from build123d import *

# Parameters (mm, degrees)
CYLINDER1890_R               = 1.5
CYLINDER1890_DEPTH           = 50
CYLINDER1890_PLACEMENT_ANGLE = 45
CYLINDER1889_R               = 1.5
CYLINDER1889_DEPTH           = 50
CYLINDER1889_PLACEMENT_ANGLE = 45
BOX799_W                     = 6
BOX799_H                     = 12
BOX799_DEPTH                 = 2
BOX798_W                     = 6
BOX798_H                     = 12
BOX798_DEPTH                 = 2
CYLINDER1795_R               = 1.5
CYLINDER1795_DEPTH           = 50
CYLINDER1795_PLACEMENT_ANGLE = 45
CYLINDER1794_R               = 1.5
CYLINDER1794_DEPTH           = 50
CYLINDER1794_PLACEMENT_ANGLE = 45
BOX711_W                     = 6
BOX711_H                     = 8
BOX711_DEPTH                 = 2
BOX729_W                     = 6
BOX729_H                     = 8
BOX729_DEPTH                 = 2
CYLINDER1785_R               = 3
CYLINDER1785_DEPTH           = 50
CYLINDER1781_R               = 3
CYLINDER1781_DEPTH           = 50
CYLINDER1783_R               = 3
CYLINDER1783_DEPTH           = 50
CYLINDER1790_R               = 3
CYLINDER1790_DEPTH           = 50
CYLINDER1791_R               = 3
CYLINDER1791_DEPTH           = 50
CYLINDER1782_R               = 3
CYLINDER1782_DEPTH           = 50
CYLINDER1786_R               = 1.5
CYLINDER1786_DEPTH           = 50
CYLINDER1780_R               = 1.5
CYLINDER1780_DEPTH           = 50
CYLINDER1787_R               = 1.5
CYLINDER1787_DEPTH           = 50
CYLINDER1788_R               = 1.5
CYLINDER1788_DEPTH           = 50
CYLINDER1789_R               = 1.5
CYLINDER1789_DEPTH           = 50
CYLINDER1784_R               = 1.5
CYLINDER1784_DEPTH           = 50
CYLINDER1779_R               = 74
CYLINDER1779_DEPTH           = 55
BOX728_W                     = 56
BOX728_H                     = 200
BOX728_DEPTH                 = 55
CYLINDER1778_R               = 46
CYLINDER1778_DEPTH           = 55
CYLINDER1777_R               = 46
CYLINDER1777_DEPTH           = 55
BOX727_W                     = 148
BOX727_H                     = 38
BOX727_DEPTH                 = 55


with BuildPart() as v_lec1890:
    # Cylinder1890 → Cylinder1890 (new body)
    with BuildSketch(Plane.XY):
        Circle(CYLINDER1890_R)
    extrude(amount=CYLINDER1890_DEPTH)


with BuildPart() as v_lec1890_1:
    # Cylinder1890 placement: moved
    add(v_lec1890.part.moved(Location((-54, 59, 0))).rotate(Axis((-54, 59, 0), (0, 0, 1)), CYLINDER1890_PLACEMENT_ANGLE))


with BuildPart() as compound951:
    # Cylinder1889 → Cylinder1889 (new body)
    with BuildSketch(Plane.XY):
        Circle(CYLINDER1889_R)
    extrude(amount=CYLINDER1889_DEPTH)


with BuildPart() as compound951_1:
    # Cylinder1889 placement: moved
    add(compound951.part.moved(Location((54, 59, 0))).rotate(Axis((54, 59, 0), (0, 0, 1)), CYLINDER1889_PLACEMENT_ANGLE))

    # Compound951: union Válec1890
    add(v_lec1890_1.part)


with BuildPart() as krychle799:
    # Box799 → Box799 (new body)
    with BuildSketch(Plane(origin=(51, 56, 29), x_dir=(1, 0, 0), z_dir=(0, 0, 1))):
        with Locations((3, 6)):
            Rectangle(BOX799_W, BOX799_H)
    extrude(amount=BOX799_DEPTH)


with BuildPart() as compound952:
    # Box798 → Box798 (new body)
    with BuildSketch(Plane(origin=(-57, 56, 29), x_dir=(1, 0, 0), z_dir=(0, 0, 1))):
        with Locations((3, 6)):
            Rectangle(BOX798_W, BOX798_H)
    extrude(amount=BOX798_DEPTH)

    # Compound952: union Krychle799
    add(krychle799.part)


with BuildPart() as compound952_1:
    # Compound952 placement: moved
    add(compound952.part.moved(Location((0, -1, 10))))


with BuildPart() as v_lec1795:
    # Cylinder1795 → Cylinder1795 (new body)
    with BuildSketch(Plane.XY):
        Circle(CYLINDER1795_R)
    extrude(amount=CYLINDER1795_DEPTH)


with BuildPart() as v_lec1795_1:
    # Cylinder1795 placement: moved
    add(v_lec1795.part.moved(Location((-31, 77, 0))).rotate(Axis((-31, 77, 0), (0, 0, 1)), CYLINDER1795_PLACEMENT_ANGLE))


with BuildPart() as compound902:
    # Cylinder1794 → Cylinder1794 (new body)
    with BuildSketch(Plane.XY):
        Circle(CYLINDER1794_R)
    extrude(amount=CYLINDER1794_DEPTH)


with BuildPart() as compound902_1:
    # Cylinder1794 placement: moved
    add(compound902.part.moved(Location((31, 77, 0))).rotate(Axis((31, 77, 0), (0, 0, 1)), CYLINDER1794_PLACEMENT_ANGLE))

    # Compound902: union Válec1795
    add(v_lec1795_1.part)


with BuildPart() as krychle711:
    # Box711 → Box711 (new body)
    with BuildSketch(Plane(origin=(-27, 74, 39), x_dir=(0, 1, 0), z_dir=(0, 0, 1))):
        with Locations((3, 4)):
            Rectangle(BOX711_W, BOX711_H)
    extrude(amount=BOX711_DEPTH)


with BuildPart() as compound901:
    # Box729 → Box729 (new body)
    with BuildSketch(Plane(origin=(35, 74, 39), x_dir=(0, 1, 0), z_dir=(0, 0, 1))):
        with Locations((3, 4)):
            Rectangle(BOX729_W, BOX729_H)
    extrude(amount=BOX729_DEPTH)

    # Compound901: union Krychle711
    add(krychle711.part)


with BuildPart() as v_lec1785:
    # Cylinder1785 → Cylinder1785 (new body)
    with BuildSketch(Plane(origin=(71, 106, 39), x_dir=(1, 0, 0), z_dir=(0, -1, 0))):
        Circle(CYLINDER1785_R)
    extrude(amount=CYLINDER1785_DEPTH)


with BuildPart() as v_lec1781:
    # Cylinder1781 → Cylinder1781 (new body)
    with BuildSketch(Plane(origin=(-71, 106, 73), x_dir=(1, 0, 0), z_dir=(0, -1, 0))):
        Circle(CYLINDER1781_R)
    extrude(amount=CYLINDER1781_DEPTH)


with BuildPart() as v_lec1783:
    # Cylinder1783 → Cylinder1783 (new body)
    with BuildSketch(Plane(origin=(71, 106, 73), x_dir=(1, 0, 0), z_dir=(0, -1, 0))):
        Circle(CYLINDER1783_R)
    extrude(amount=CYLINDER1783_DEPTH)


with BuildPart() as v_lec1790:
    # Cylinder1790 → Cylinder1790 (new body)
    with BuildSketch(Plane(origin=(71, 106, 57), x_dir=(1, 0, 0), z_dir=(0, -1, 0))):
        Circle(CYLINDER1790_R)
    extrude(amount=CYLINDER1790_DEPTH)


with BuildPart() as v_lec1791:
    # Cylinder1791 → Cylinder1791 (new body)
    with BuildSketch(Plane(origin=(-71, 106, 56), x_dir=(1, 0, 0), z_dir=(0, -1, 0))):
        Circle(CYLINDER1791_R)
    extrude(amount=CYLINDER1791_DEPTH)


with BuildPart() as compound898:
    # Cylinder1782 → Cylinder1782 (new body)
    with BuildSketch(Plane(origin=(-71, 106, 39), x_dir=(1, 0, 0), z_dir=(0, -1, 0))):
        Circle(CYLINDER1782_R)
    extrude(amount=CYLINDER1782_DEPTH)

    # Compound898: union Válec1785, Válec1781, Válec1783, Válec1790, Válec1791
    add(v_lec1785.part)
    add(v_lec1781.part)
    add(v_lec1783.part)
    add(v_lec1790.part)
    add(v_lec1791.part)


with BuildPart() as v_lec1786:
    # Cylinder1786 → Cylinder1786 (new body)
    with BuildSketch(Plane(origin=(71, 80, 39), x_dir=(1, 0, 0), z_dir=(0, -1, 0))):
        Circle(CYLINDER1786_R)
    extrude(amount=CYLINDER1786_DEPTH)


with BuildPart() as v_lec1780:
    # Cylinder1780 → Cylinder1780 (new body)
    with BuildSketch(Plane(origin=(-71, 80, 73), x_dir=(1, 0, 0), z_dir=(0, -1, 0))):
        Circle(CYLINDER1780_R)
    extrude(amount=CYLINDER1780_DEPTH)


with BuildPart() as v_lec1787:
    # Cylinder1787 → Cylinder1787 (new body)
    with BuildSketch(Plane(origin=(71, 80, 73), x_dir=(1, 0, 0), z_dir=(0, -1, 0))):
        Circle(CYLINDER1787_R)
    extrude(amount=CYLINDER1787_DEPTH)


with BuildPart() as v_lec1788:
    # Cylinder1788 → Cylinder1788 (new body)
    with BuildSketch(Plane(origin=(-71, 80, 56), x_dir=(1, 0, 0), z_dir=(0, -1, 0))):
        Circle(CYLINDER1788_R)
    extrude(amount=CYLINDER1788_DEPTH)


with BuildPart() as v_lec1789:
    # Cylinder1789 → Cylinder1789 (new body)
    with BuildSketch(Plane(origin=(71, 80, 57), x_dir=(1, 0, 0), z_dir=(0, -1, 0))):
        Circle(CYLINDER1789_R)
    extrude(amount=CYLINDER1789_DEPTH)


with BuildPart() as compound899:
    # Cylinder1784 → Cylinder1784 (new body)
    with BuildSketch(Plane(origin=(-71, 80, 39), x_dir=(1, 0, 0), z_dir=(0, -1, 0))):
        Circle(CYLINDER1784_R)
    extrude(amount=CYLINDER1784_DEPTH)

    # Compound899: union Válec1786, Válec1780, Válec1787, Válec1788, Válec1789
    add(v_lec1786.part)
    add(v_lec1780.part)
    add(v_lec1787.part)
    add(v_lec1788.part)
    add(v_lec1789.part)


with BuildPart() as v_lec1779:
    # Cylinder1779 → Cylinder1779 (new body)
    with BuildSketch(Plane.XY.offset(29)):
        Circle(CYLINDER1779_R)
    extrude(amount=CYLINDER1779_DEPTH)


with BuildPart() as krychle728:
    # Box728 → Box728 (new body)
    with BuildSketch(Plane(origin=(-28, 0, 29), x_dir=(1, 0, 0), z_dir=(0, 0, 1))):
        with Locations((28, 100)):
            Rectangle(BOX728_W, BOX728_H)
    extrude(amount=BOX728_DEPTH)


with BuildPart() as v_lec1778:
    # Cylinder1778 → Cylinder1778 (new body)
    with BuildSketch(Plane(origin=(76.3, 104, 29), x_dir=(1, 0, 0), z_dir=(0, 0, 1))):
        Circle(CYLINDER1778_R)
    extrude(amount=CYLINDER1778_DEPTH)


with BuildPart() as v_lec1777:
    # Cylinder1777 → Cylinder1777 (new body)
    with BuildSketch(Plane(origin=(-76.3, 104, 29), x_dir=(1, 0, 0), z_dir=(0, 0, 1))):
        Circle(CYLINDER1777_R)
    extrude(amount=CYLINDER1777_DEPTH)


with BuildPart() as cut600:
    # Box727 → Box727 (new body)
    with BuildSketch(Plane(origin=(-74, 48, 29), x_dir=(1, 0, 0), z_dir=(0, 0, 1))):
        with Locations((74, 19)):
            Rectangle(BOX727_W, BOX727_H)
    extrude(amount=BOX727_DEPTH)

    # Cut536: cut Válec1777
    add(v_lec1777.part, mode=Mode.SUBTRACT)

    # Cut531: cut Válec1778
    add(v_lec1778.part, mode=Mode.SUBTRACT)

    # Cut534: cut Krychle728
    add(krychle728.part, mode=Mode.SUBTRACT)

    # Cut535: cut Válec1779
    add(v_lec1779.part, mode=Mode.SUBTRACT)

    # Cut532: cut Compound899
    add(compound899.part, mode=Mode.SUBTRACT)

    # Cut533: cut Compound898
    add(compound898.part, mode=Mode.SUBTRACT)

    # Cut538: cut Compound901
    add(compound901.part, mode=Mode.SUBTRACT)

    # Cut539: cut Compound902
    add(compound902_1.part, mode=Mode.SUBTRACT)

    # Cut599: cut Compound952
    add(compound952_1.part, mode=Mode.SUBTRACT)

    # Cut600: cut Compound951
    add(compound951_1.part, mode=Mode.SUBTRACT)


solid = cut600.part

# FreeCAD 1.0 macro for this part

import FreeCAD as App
import Part
import Sketcher
from FreeCAD import Vector


def add_polygon(sketch, points):
    """Adds a closed chain of lines whose ends are joined by coincident constraints."""
    first, n = sketch.GeometryCount, len(points)
    for a, b in zip(points, points[1:] + points[:1]):
        sketch.addGeometry(Part.LineSegment(App.Vector(*a, 0), App.Vector(*b, 0)), False)
    for i in range(n):
        sketch.addConstraint(Sketcher.Constraint("Coincident", first + i, 2, first + (i + 1) % n, 1))

doc = App.newDocument("Part")
body = doc.addObject("PartDesign::Body", "Body")

# Sketch on XY plane
sketch1 = doc.addObject("Sketcher::SketchObject", "Sketch")
body.addObject(sketch1)
sketch1.AttachmentSupport = (doc.XY_Plane, [""])
sketch1.MapMode = "FlatFace"
sketch1.addGeometry(Part.Circle(Vector(0, 0, 0), Vector(0, 0, 1), 1.5), False)
sketch1.addConstraint([
    Sketcher.Constraint("Coincident", 0, 3, -1, 1),
    Sketcher.Constraint("Diameter", 0, 3.0),
])
pad1 = doc.addObject("PartDesign::Pad", "Pad")
body.addObject(pad1)
pad1.Profile = sketch1
pad1.Length = 50
body2 = doc.addObject("PartDesign::Body", "Body001")
doc.recompute()

body.Placement = App.Placement(Vector(-54, 59, 0), App.Rotation(Vector(0, 0, 1), 45))
boolean = doc.addObject("PartDesign::Boolean", "Boolean")
body2.addObject(boolean)
boolean.Type = "Fuse"
boolean.addObjects([body])
body3 = doc.addObject("PartDesign::Body", "Body002")

# Sketch on XY plane
sketch2 = doc.addObject("Sketcher::SketchObject", "Sketch001")
body3.addObject(sketch2)
sketch2.AttachmentSupport = (doc.getObject("XY_Plane002"), [""])
sketch2.MapMode = "FlatFace"
sketch2.addGeometry(Part.Circle(Vector(0, 0, 0), Vector(0, 0, 1), 1.5), False)
sketch2.addConstraint([
    Sketcher.Constraint("Coincident", 0, 3, -1, 1),
    Sketcher.Constraint("Diameter", 0, 3.0),
])
pad2 = doc.addObject("PartDesign::Pad", "Pad001")
body3.addObject(pad2)
pad2.Profile = sketch2
pad2.Length = 50
body4 = doc.addObject("PartDesign::Body", "Body003")
body4.AllowCompound = True
doc.recompute()

body3.Placement = App.Placement(Vector(54, 59, 0), App.Rotation(Vector(0, 0, 1), 45))
boolean2 = doc.addObject("PartDesign::Boolean", "Boolean001")
body4.addObject(boolean2)
boolean2.Type = "Fuse"
boolean2.addObjects([body3])
doc.recompute()

boolean3 = doc.addObject("PartDesign::Boolean", "Boolean002")
body4.addObject(boolean3)
boolean3.Type = "Fuse"
boolean3.addObjects([body2])
body5 = doc.addObject("PartDesign::Body", "Body004")

# Sketch on XY plane
sketch3 = doc.addObject("Sketcher::SketchObject", "Sketch002")
body5.addObject(sketch3)
sketch3.AttachmentSupport = (doc.getObject("XY_Plane004"), [""])
sketch3.MapMode = "FlatFace"
sketch3.AttachmentOffset = App.Placement(Vector(0, 0, 29), App.Rotation())
add_polygon(sketch3, [(51, 68), (51, 56), (57, 56), (57, 68)])  # lines 0-3
sketch3.addConstraint([
    Sketcher.Constraint("Vertical", 0),
    Sketcher.Constraint("Horizontal", 1),
    Sketcher.Constraint("Vertical", 2),
    Sketcher.Constraint("Horizontal", 3),
    Sketcher.Constraint("DistanceX", 1, 1, 1, 2, 6.0),
    Sketcher.Constraint("DistanceY", 0, 2, 0, 1, 12.0),
    Sketcher.Constraint("DistanceX", -1, 1, 0, 2, 51.0),
    Sketcher.Constraint("DistanceY", -1, 1, 0, 2, 56.0),
])
pad3 = doc.addObject("PartDesign::Pad", "Pad002")
body5.addObject(pad3)
pad3.Profile = sketch3
pad3.Length = 2
body6 = doc.addObject("PartDesign::Body", "Body005")
body6.AllowCompound = True

# Sketch on XY plane
sketch4 = doc.addObject("Sketcher::SketchObject", "Sketch003")
body6.addObject(sketch4)
sketch4.AttachmentSupport = (doc.getObject("XY_Plane005"), [""])
sketch4.MapMode = "FlatFace"
sketch4.AttachmentOffset = App.Placement(Vector(0, 0, 29), App.Rotation())
add_polygon(sketch4, [(-57, 68), (-57, 56), (-51, 56), (-51, 68)])  # lines 0-3
sketch4.addConstraint([
    Sketcher.Constraint("Vertical", 0),
    Sketcher.Constraint("Horizontal", 1),
    Sketcher.Constraint("Vertical", 2),
    Sketcher.Constraint("Horizontal", 3),
    Sketcher.Constraint("DistanceX", 1, 1, 1, 2, 6.0),
    Sketcher.Constraint("DistanceY", 0, 2, 0, 1, 12.0),
    Sketcher.Constraint("DistanceX", 0, 2, -1, 1, 57.0),
    Sketcher.Constraint("DistanceY", -1, 1, 0, 2, 56.0),
])
pad4 = doc.addObject("PartDesign::Pad", "Pad003")
body6.addObject(pad4)
pad4.Profile = sketch4
pad4.Length = 2
doc.recompute()

boolean4 = doc.addObject("PartDesign::Boolean", "Boolean003")
body6.addObject(boolean4)
boolean4.Type = "Fuse"
boolean4.addObjects([body5])
body7 = doc.addObject("PartDesign::Body", "Body006")
body7.AllowCompound = True
doc.recompute()

body6.Placement = App.Placement(Vector(0, -1, 10), App.Rotation(Vector(0, 0, 1), 0))
boolean5 = doc.addObject("PartDesign::Boolean", "Boolean004")
body7.addObject(boolean5)
boolean5.Type = "Fuse"
boolean5.addObjects([body6])
body8 = doc.addObject("PartDesign::Body", "Body007")

# Sketch on XY plane
sketch5 = doc.addObject("Sketcher::SketchObject", "Sketch004")
body8.addObject(sketch5)
sketch5.AttachmentSupport = (doc.getObject("XY_Plane007"), [""])
sketch5.MapMode = "FlatFace"
sketch5.addGeometry(Part.Circle(Vector(0, 0, 0), Vector(0, 0, 1), 1.5), False)
sketch5.addConstraint([
    Sketcher.Constraint("Coincident", 0, 3, -1, 1),
    Sketcher.Constraint("Diameter", 0, 3.0),
])
pad5 = doc.addObject("PartDesign::Pad", "Pad004")
body8.addObject(pad5)
pad5.Profile = sketch5
pad5.Length = 50
body9 = doc.addObject("PartDesign::Body", "Body008")
doc.recompute()

body8.Placement = App.Placement(Vector(-31, 77, 0), App.Rotation(Vector(0, 0, 1), 45))
boolean6 = doc.addObject("PartDesign::Boolean", "Boolean005")
body9.addObject(boolean6)
boolean6.Type = "Fuse"
boolean6.addObjects([body8])
body10 = doc.addObject("PartDesign::Body", "Body009")

# Sketch on XY plane
sketch6 = doc.addObject("Sketcher::SketchObject", "Sketch005")
body10.addObject(sketch6)
sketch6.AttachmentSupport = (doc.getObject("XY_Plane009"), [""])
sketch6.MapMode = "FlatFace"
sketch6.addGeometry(Part.Circle(Vector(0, 0, 0), Vector(0, 0, 1), 1.5), False)
sketch6.addConstraint([
    Sketcher.Constraint("Coincident", 0, 3, -1, 1),
    Sketcher.Constraint("Diameter", 0, 3.0),
])
pad6 = doc.addObject("PartDesign::Pad", "Pad005")
body10.addObject(pad6)
pad6.Profile = sketch6
pad6.Length = 50
body11 = doc.addObject("PartDesign::Body", "Body010")
body11.AllowCompound = True
doc.recompute()

body10.Placement = App.Placement(Vector(31, 77, 0), App.Rotation(Vector(0, 0, 1), 45))
boolean7 = doc.addObject("PartDesign::Boolean", "Boolean006")
body11.addObject(boolean7)
boolean7.Type = "Fuse"
boolean7.addObjects([body10])
doc.recompute()

boolean8 = doc.addObject("PartDesign::Boolean", "Boolean007")
body11.addObject(boolean8)
boolean8.Type = "Fuse"
boolean8.addObjects([body9])
body12 = doc.addObject("PartDesign::Body", "Body011")

# Sketch on XY plane
sketch7 = doc.addObject("Sketcher::SketchObject", "Sketch006")
body12.addObject(sketch7)
sketch7.AttachmentSupport = (doc.getObject("XY_Plane011"), [""])
sketch7.MapMode = "FlatFace"
sketch7.AttachmentOffset = App.Placement(Vector(0, 0, 39), App.Rotation())
add_polygon(sketch7, [(-35, 74), (-27, 74), (-27, 80), (-35, 80)])  # lines 0-3
sketch7.addConstraint([
    Sketcher.Constraint("Horizontal", 0),
    Sketcher.Constraint("Vertical", 1),
    Sketcher.Constraint("Horizontal", 2),
    Sketcher.Constraint("Vertical", 3),
    Sketcher.Constraint("DistanceX", 0, 1, 0, 2, 8.0),
    Sketcher.Constraint("DistanceY", 1, 1, 1, 2, 6.0),
    Sketcher.Constraint("DistanceX", 0, 2, -1, 1, 27.0),
    Sketcher.Constraint("DistanceY", -1, 1, 0, 2, 74.0),
])
pad7 = doc.addObject("PartDesign::Pad", "Pad006")
body12.addObject(pad7)
pad7.Profile = sketch7
pad7.Length = 2
body13 = doc.addObject("PartDesign::Body", "Body012")
body13.AllowCompound = True

# Sketch on XY plane
sketch8 = doc.addObject("Sketcher::SketchObject", "Sketch007")
body13.addObject(sketch8)
sketch8.AttachmentSupport = (doc.getObject("XY_Plane012"), [""])
sketch8.MapMode = "FlatFace"
sketch8.AttachmentOffset = App.Placement(Vector(0, 0, 39), App.Rotation())
add_polygon(sketch8, [(27, 74), (35, 74), (35, 80), (27, 80)])  # lines 0-3
sketch8.addConstraint([
    Sketcher.Constraint("Horizontal", 0),
    Sketcher.Constraint("Vertical", 1),
    Sketcher.Constraint("Horizontal", 2),
    Sketcher.Constraint("Vertical", 3),
    Sketcher.Constraint("DistanceX", 0, 1, 0, 2, 8.0),
    Sketcher.Constraint("DistanceY", 1, 1, 1, 2, 6.0),
    Sketcher.Constraint("DistanceX", -1, 1, 0, 2, 35.0),
    Sketcher.Constraint("DistanceY", -1, 1, 0, 2, 74.0),
])
pad8 = doc.addObject("PartDesign::Pad", "Pad007")
body13.addObject(pad8)
pad8.Profile = sketch8
pad8.Length = 2
doc.recompute()

boolean9 = doc.addObject("PartDesign::Boolean", "Boolean008")
body13.addObject(boolean9)
boolean9.Type = "Fuse"
boolean9.addObjects([body12])
body14 = doc.addObject("PartDesign::Body", "Body013")

# Sketch on XZ plane
sketch9 = doc.addObject("Sketcher::SketchObject", "Sketch008")
body14.addObject(sketch9)
sketch9.AttachmentSupport = (doc.getObject("XZ_Plane013"), [""])
sketch9.MapMode = "FlatFace"
sketch9.AttachmentOffset = App.Placement(Vector(0, 0, -106), App.Rotation())
sketch9.addGeometry(Part.Circle(Vector(71, 39, 0), Vector(0, 0, 1), 3), False)
sketch9.addConstraint([
    Sketcher.Constraint("Diameter", 0, 6.0),
    Sketcher.Constraint("DistanceX", -1, 1, 0, 3, 71.0),
    Sketcher.Constraint("DistanceY", -1, 1, 0, 3, 39.0),
])
pad9 = doc.addObject("PartDesign::Pad", "Pad008")
body14.addObject(pad9)
pad9.Profile = sketch9
pad9.Length = 50
body15 = doc.addObject("PartDesign::Body", "Body014")

# Sketch on XZ plane
sketch10 = doc.addObject("Sketcher::SketchObject", "Sketch009")
body15.addObject(sketch10)
sketch10.AttachmentSupport = (doc.getObject("XZ_Plane014"), [""])
sketch10.MapMode = "FlatFace"
sketch10.AttachmentOffset = App.Placement(Vector(0, 0, -106), App.Rotation())
sketch10.addGeometry(Part.Circle(Vector(-71, 73, 0), Vector(0, 0, 1), 3), False)
sketch10.addConstraint([
    Sketcher.Constraint("Diameter", 0, 6.0),
    Sketcher.Constraint("DistanceX", 0, 3, -1, 1, 71.0),
    Sketcher.Constraint("DistanceY", -1, 1, 0, 3, 73.0),
])
pad10 = doc.addObject("PartDesign::Pad", "Pad009")
body15.addObject(pad10)
pad10.Profile = sketch10
pad10.Length = 50
body16 = doc.addObject("PartDesign::Body", "Body015")

# Sketch on XZ plane
sketch11 = doc.addObject("Sketcher::SketchObject", "Sketch010")
body16.addObject(sketch11)
sketch11.AttachmentSupport = (doc.getObject("XZ_Plane015"), [""])
sketch11.MapMode = "FlatFace"
sketch11.AttachmentOffset = App.Placement(Vector(0, 0, -106), App.Rotation())
sketch11.addGeometry(Part.Circle(Vector(71, 73, 0), Vector(0, 0, 1), 3), False)
sketch11.addConstraint([
    Sketcher.Constraint("Diameter", 0, 6.0),
    Sketcher.Constraint("DistanceX", -1, 1, 0, 3, 71.0),
    Sketcher.Constraint("DistanceY", -1, 1, 0, 3, 73.0),
])
pad11 = doc.addObject("PartDesign::Pad", "Pad010")
body16.addObject(pad11)
pad11.Profile = sketch11
pad11.Length = 50
body17 = doc.addObject("PartDesign::Body", "Body016")

# Sketch on XZ plane
sketch12 = doc.addObject("Sketcher::SketchObject", "Sketch011")
body17.addObject(sketch12)
sketch12.AttachmentSupport = (doc.getObject("XZ_Plane016"), [""])
sketch12.MapMode = "FlatFace"
sketch12.AttachmentOffset = App.Placement(Vector(0, 0, -106), App.Rotation())
sketch12.addGeometry(Part.Circle(Vector(71, 57, 0), Vector(0, 0, 1), 3), False)
sketch12.addConstraint([
    Sketcher.Constraint("Diameter", 0, 6.0),
    Sketcher.Constraint("DistanceX", -1, 1, 0, 3, 71.0),
    Sketcher.Constraint("DistanceY", -1, 1, 0, 3, 57.0),
])
pad12 = doc.addObject("PartDesign::Pad", "Pad011")
body17.addObject(pad12)
pad12.Profile = sketch12
pad12.Length = 50
body18 = doc.addObject("PartDesign::Body", "Body017")

# Sketch on XZ plane
sketch13 = doc.addObject("Sketcher::SketchObject", "Sketch012")
body18.addObject(sketch13)
sketch13.AttachmentSupport = (doc.getObject("XZ_Plane017"), [""])
sketch13.MapMode = "FlatFace"
sketch13.AttachmentOffset = App.Placement(Vector(0, 0, -106), App.Rotation())
sketch13.addGeometry(Part.Circle(Vector(-71, 56, 0), Vector(0, 0, 1), 3), False)
sketch13.addConstraint([
    Sketcher.Constraint("Diameter", 0, 6.0),
    Sketcher.Constraint("DistanceX", 0, 3, -1, 1, 71.0),
    Sketcher.Constraint("DistanceY", -1, 1, 0, 3, 56.0),
])
pad13 = doc.addObject("PartDesign::Pad", "Pad012")
body18.addObject(pad13)
pad13.Profile = sketch13
pad13.Length = 50
body19 = doc.addObject("PartDesign::Body", "Body018")
body19.AllowCompound = True

# Sketch on XZ plane
sketch14 = doc.addObject("Sketcher::SketchObject", "Sketch013")
body19.addObject(sketch14)
sketch14.AttachmentSupport = (doc.getObject("XZ_Plane018"), [""])
sketch14.MapMode = "FlatFace"
sketch14.AttachmentOffset = App.Placement(Vector(0, 0, -106), App.Rotation())
sketch14.addGeometry(Part.Circle(Vector(-71, 39, 0), Vector(0, 0, 1), 3), False)
sketch14.addConstraint([
    Sketcher.Constraint("Diameter", 0, 6.0),
    Sketcher.Constraint("DistanceX", 0, 3, -1, 1, 71.0),
    Sketcher.Constraint("DistanceY", -1, 1, 0, 3, 39.0),
])
pad14 = doc.addObject("PartDesign::Pad", "Pad013")
body19.addObject(pad14)
pad14.Profile = sketch14
pad14.Length = 50
doc.recompute()

boolean10 = doc.addObject("PartDesign::Boolean", "Boolean009")
body19.addObject(boolean10)
boolean10.Type = "Fuse"
boolean10.addObjects([body14])
doc.recompute()

boolean11 = doc.addObject("PartDesign::Boolean", "Boolean010")
body19.addObject(boolean11)
boolean11.Type = "Fuse"
boolean11.addObjects([body15])
doc.recompute()

boolean12 = doc.addObject("PartDesign::Boolean", "Boolean011")
body19.addObject(boolean12)
boolean12.Type = "Fuse"
boolean12.addObjects([body16])
doc.recompute()

boolean13 = doc.addObject("PartDesign::Boolean", "Boolean012")
body19.addObject(boolean13)
boolean13.Type = "Fuse"
boolean13.addObjects([body17])
doc.recompute()

boolean14 = doc.addObject("PartDesign::Boolean", "Boolean013")
body19.addObject(boolean14)
boolean14.Type = "Fuse"
boolean14.addObjects([body18])
body20 = doc.addObject("PartDesign::Body", "Body019")

# Sketch on XZ plane
sketch15 = doc.addObject("Sketcher::SketchObject", "Sketch014")
body20.addObject(sketch15)
sketch15.AttachmentSupport = (doc.getObject("XZ_Plane019"), [""])
sketch15.MapMode = "FlatFace"
sketch15.AttachmentOffset = App.Placement(Vector(0, 0, -80), App.Rotation())
sketch15.addGeometry(Part.Circle(Vector(71, 39, 0), Vector(0, 0, 1), 1.5), False)
sketch15.addConstraint([
    Sketcher.Constraint("Diameter", 0, 3.0),
    Sketcher.Constraint("DistanceX", -1, 1, 0, 3, 71.0),
    Sketcher.Constraint("DistanceY", -1, 1, 0, 3, 39.0),
])
pad15 = doc.addObject("PartDesign::Pad", "Pad014")
body20.addObject(pad15)
pad15.Profile = sketch15
pad15.Length = 50
body21 = doc.addObject("PartDesign::Body", "Body020")

# Sketch on XZ plane
sketch16 = doc.addObject("Sketcher::SketchObject", "Sketch015")
body21.addObject(sketch16)
sketch16.AttachmentSupport = (doc.getObject("XZ_Plane020"), [""])
sketch16.MapMode = "FlatFace"
sketch16.AttachmentOffset = App.Placement(Vector(0, 0, -80), App.Rotation())
sketch16.addGeometry(Part.Circle(Vector(-71, 73, 0), Vector(0, 0, 1), 1.5), False)
sketch16.addConstraint([
    Sketcher.Constraint("Diameter", 0, 3.0),
    Sketcher.Constraint("DistanceX", 0, 3, -1, 1, 71.0),
    Sketcher.Constraint("DistanceY", -1, 1, 0, 3, 73.0),
])
pad16 = doc.addObject("PartDesign::Pad", "Pad015")
body21.addObject(pad16)
pad16.Profile = sketch16
pad16.Length = 50
body22 = doc.addObject("PartDesign::Body", "Body021")

# Sketch on XZ plane
sketch17 = doc.addObject("Sketcher::SketchObject", "Sketch016")
body22.addObject(sketch17)
sketch17.AttachmentSupport = (doc.getObject("XZ_Plane021"), [""])
sketch17.MapMode = "FlatFace"
sketch17.AttachmentOffset = App.Placement(Vector(0, 0, -80), App.Rotation())
sketch17.addGeometry(Part.Circle(Vector(71, 73, 0), Vector(0, 0, 1), 1.5), False)
sketch17.addConstraint([
    Sketcher.Constraint("Diameter", 0, 3.0),
    Sketcher.Constraint("DistanceX", -1, 1, 0, 3, 71.0),
    Sketcher.Constraint("DistanceY", -1, 1, 0, 3, 73.0),
])
pad17 = doc.addObject("PartDesign::Pad", "Pad016")
body22.addObject(pad17)
pad17.Profile = sketch17
pad17.Length = 50
body23 = doc.addObject("PartDesign::Body", "Body022")

# Sketch on XZ plane
sketch18 = doc.addObject("Sketcher::SketchObject", "Sketch017")
body23.addObject(sketch18)
sketch18.AttachmentSupport = (doc.getObject("XZ_Plane022"), [""])
sketch18.MapMode = "FlatFace"
sketch18.AttachmentOffset = App.Placement(Vector(0, 0, -80), App.Rotation())
sketch18.addGeometry(Part.Circle(Vector(-71, 56, 0), Vector(0, 0, 1), 1.5), False)
sketch18.addConstraint([
    Sketcher.Constraint("Diameter", 0, 3.0),
    Sketcher.Constraint("DistanceX", 0, 3, -1, 1, 71.0),
    Sketcher.Constraint("DistanceY", -1, 1, 0, 3, 56.0),
])
pad18 = doc.addObject("PartDesign::Pad", "Pad017")
body23.addObject(pad18)
pad18.Profile = sketch18
pad18.Length = 50
body24 = doc.addObject("PartDesign::Body", "Body023")

# Sketch on XZ plane
sketch19 = doc.addObject("Sketcher::SketchObject", "Sketch018")
body24.addObject(sketch19)
sketch19.AttachmentSupport = (doc.getObject("XZ_Plane023"), [""])
sketch19.MapMode = "FlatFace"
sketch19.AttachmentOffset = App.Placement(Vector(0, 0, -80), App.Rotation())
sketch19.addGeometry(Part.Circle(Vector(71, 57, 0), Vector(0, 0, 1), 1.5), False)
sketch19.addConstraint([
    Sketcher.Constraint("Diameter", 0, 3.0),
    Sketcher.Constraint("DistanceX", -1, 1, 0, 3, 71.0),
    Sketcher.Constraint("DistanceY", -1, 1, 0, 3, 57.0),
])
pad19 = doc.addObject("PartDesign::Pad", "Pad018")
body24.addObject(pad19)
pad19.Profile = sketch19
pad19.Length = 50
body25 = doc.addObject("PartDesign::Body", "Body024")
body25.AllowCompound = True

# Sketch on XZ plane
sketch20 = doc.addObject("Sketcher::SketchObject", "Sketch019")
body25.addObject(sketch20)
sketch20.AttachmentSupport = (doc.getObject("XZ_Plane024"), [""])
sketch20.MapMode = "FlatFace"
sketch20.AttachmentOffset = App.Placement(Vector(0, 0, -80), App.Rotation())
sketch20.addGeometry(Part.Circle(Vector(-71, 39, 0), Vector(0, 0, 1), 1.5), False)
sketch20.addConstraint([
    Sketcher.Constraint("Diameter", 0, 3.0),
    Sketcher.Constraint("DistanceX", 0, 3, -1, 1, 71.0),
    Sketcher.Constraint("DistanceY", -1, 1, 0, 3, 39.0),
])
pad20 = doc.addObject("PartDesign::Pad", "Pad019")
body25.addObject(pad20)
pad20.Profile = sketch20
pad20.Length = 50
doc.recompute()

boolean15 = doc.addObject("PartDesign::Boolean", "Boolean014")
body25.addObject(boolean15)
boolean15.Type = "Fuse"
boolean15.addObjects([body20])
doc.recompute()

boolean16 = doc.addObject("PartDesign::Boolean", "Boolean015")
body25.addObject(boolean16)
boolean16.Type = "Fuse"
boolean16.addObjects([body21])
doc.recompute()

boolean17 = doc.addObject("PartDesign::Boolean", "Boolean016")
body25.addObject(boolean17)
boolean17.Type = "Fuse"
boolean17.addObjects([body22])
doc.recompute()

boolean18 = doc.addObject("PartDesign::Boolean", "Boolean017")
body25.addObject(boolean18)
boolean18.Type = "Fuse"
boolean18.addObjects([body23])
doc.recompute()

boolean19 = doc.addObject("PartDesign::Boolean", "Boolean018")
body25.addObject(boolean19)
boolean19.Type = "Fuse"
boolean19.addObjects([body24])
body26 = doc.addObject("PartDesign::Body", "Body025")

# Sketch on XY plane
sketch21 = doc.addObject("Sketcher::SketchObject", "Sketch020")
body26.addObject(sketch21)
sketch21.AttachmentSupport = (doc.getObject("XY_Plane025"), [""])
sketch21.MapMode = "FlatFace"
sketch21.AttachmentOffset = App.Placement(Vector(0, 0, 29), App.Rotation())
sketch21.addGeometry(Part.Circle(Vector(0, 0, 0), Vector(0, 0, 1), 74), False)
sketch21.addConstraint([
    Sketcher.Constraint("Coincident", 0, 3, -1, 1),
    Sketcher.Constraint("Diameter", 0, 148.0),
])
pad21 = doc.addObject("PartDesign::Pad", "Pad020")
body26.addObject(pad21)
pad21.Profile = sketch21
pad21.Length = 55
body27 = doc.addObject("PartDesign::Body", "Body026")

# Sketch on XY plane
sketch22 = doc.addObject("Sketcher::SketchObject", "Sketch021")
body27.addObject(sketch22)
sketch22.AttachmentSupport = (doc.getObject("XY_Plane026"), [""])
sketch22.MapMode = "FlatFace"
sketch22.AttachmentOffset = App.Placement(Vector(0, 0, 29), App.Rotation())
add_polygon(sketch22, [(-28, 200), (-28, 0), (28, 0), (28, 200)])  # lines 0-3
sketch22.addConstraint([
    Sketcher.Constraint("Vertical", 0),
    Sketcher.Constraint("Horizontal", 1),
    Sketcher.Constraint("Vertical", 2),
    Sketcher.Constraint("Horizontal", 3),
    Sketcher.Constraint("Symmetric", 0, 2, 1, 2, -1, 1),
    Sketcher.Constraint("DistanceX", 1, 1, 1, 2, 56.0),
    Sketcher.Constraint("DistanceY", 0, 2, 0, 1, 200.0),
])
pad22 = doc.addObject("PartDesign::Pad", "Pad021")
body27.addObject(pad22)
pad22.Profile = sketch22
pad22.Length = 55
body28 = doc.addObject("PartDesign::Body", "Body027")

# Sketch on XY plane
sketch23 = doc.addObject("Sketcher::SketchObject", "Sketch022")
body28.addObject(sketch23)
sketch23.AttachmentSupport = (doc.getObject("XY_Plane027"), [""])
sketch23.MapMode = "FlatFace"
sketch23.AttachmentOffset = App.Placement(Vector(0, 0, 29), App.Rotation())
sketch23.addGeometry(Part.Circle(Vector(76, 104, 0), Vector(0, 0, 1), 46), False)
sketch23.addConstraint([
    Sketcher.Constraint("Diameter", 0, 92.0),
    Sketcher.Constraint("DistanceY", -1, 1, 0, 3, 104.0),
    Sketcher.Constraint("DistanceX", -1, 1, 0, 3, 76.3),
])
pad23 = doc.addObject("PartDesign::Pad", "Pad022")
body28.addObject(pad23)
pad23.Profile = sketch23
pad23.Length = 55
body29 = doc.addObject("PartDesign::Body", "Body028")

# Sketch on XY plane
sketch24 = doc.addObject("Sketcher::SketchObject", "Sketch023")
body29.addObject(sketch24)
sketch24.AttachmentSupport = (doc.getObject("XY_Plane028"), [""])
sketch24.MapMode = "FlatFace"
sketch24.AttachmentOffset = App.Placement(Vector(0, 0, 29), App.Rotation())
sketch24.addGeometry(Part.Circle(Vector(-76, 104, 0), Vector(0, 0, 1), 46), False)
sketch24.addConstraint([
    Sketcher.Constraint("Diameter", 0, 92.0),
    Sketcher.Constraint("DistanceY", -1, 1, 0, 3, 104.0),
    Sketcher.Constraint("DistanceX", 0, 3, -1, 1, 76.3),
])
pad24 = doc.addObject("PartDesign::Pad", "Pad023")
body29.addObject(pad24)
pad24.Profile = sketch24
pad24.Length = 55
body30 = doc.addObject("PartDesign::Body", "Body029")
body30.AllowCompound = True

# Sketch on XY plane
sketch25 = doc.addObject("Sketcher::SketchObject", "Sketch024")
body30.addObject(sketch25)
sketch25.AttachmentSupport = (doc.getObject("XY_Plane029"), [""])
sketch25.MapMode = "FlatFace"
sketch25.AttachmentOffset = App.Placement(Vector(0, 0, 29), App.Rotation())
add_polygon(sketch25, [(-74, 86), (-74, 48), (74, 48), (74, 86)])  # lines 0-3
sketch25.addConstraint([
    Sketcher.Constraint("Vertical", 0),
    Sketcher.Constraint("Horizontal", 1),
    Sketcher.Constraint("Vertical", 2),
    Sketcher.Constraint("Horizontal", 3),
    Sketcher.Constraint("DistanceX", 1, 1, 1, 2, 148.0),
    Sketcher.Constraint("DistanceY", 0, 2, 0, 1, 38.0),
    Sketcher.Constraint("DistanceX", 0, 2, -1, 1, 74.0),
    Sketcher.Constraint("DistanceY", -1, 1, 0, 2, 48.0),
])
pad25 = doc.addObject("PartDesign::Pad", "Pad024")
body30.addObject(pad25)
pad25.Profile = sketch25
pad25.Length = 55
doc.recompute()

boolean20 = doc.addObject("PartDesign::Boolean", "Boolean019")
body30.addObject(boolean20)
boolean20.Type = "Cut"
boolean20.addObjects([body29])
doc.recompute()

boolean21 = doc.addObject("PartDesign::Boolean", "Boolean020")
body30.addObject(boolean21)
boolean21.Type = "Cut"
boolean21.addObjects([body28])
doc.recompute()

boolean22 = doc.addObject("PartDesign::Boolean", "Boolean021")
body30.addObject(boolean22)
boolean22.Type = "Cut"
boolean22.addObjects([body27])
doc.recompute()

boolean23 = doc.addObject("PartDesign::Boolean", "Boolean022")
body30.addObject(boolean23)
boolean23.Type = "Cut"
boolean23.addObjects([body26])
doc.recompute()

boolean24 = doc.addObject("PartDesign::Boolean", "Boolean023")
body30.addObject(boolean24)
boolean24.Type = "Cut"
boolean24.addObjects([body25])
doc.recompute()

boolean25 = doc.addObject("PartDesign::Boolean", "Boolean024")
body30.addObject(boolean25)
boolean25.Type = "Cut"
boolean25.addObjects([body19])
doc.recompute()

boolean26 = doc.addObject("PartDesign::Boolean", "Boolean025")
body30.addObject(boolean26)
boolean26.Type = "Cut"
boolean26.addObjects([body13])
doc.recompute()

boolean27 = doc.addObject("PartDesign::Boolean", "Boolean026")
body30.addObject(boolean27)
boolean27.Type = "Cut"
boolean27.addObjects([body11])
doc.recompute()

boolean28 = doc.addObject("PartDesign::Boolean", "Boolean027")
body30.addObject(boolean28)
boolean28.Type = "Cut"
boolean28.addObjects([body7])
doc.recompute()

boolean29 = doc.addObject("PartDesign::Boolean", "Boolean028")
body30.addObject(boolean29)
boolean29.Type = "Cut"
boolean29.addObjects([body4])

doc.recompute()
